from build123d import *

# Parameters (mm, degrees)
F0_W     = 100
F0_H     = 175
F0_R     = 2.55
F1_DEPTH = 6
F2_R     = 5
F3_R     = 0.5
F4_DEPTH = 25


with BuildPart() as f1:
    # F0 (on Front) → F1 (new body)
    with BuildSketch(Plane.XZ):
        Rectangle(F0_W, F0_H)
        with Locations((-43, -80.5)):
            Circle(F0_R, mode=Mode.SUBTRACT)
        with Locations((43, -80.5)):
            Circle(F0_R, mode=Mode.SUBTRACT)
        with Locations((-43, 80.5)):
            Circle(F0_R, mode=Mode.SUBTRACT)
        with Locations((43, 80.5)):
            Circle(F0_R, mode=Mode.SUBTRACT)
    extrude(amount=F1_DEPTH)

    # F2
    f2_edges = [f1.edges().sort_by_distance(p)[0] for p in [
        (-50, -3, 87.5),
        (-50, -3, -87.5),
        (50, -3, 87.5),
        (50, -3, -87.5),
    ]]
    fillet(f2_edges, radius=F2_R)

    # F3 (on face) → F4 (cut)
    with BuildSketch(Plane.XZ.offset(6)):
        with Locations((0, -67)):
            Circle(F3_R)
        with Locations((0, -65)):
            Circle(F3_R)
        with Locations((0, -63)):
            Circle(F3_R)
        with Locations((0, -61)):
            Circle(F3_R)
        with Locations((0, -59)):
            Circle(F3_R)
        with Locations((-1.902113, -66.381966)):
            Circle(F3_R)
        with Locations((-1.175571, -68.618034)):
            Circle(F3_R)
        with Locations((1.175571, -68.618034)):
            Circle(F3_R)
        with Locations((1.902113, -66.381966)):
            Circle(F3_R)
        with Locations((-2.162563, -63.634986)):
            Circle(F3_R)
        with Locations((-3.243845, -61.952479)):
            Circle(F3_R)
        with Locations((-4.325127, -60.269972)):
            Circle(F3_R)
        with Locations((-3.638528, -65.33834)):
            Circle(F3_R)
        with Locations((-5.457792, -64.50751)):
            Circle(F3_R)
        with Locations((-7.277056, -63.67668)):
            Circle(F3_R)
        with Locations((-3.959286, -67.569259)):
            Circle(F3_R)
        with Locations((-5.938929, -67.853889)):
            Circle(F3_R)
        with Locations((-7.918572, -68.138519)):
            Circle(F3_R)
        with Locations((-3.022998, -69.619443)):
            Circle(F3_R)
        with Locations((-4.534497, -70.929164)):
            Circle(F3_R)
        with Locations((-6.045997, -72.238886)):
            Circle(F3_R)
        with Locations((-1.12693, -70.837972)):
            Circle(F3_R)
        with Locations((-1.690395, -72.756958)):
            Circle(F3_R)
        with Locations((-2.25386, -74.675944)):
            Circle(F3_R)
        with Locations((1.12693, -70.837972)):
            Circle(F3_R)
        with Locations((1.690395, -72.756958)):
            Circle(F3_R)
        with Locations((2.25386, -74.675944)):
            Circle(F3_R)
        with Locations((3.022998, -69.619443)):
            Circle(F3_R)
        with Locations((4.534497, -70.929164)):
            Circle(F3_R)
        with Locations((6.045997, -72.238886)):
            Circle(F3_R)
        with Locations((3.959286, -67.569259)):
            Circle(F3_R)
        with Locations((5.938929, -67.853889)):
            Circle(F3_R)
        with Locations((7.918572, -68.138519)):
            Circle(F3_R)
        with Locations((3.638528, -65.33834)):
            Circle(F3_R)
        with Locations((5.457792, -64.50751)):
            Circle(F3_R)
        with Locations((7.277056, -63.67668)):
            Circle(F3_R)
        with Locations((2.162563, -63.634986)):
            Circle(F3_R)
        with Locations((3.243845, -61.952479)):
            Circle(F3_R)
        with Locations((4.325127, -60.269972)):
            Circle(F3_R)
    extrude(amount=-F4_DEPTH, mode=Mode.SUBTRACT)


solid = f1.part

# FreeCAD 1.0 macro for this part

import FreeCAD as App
import Part
import Sketcher

V = App.Vector


def edges_at(feature, points):
    """Names of the edges that pass closest to the given points."""
    edges = feature.Shape.Edges
    near = lambda p: min(range(len(edges)), key=lambda i: edges[i].distToShape(Part.Vertex(*p))[0])
    return sorted({f"Edge{near(p) + 1}" for p in points})

doc = App.newDocument("Part")
body = doc.addObject("PartDesign::Body", "Body")

# Sketch on XZ plane
sketch1 = body.newObject("Sketcher::SketchObject", "Sketch")
sketch1.AttachmentSupport = (doc.getObject("XZ_Plane"), [""])
sketch1.MapMode = "FlatFace"
sketch1.addGeometry([
    Part.LineSegment(V(-50, 87.5, 0), V(-50, -87.5, 0)),  # 0
    Part.LineSegment(V(-50, -87.5, 0), V(50, -87.5, 0)),  # 1
    Part.LineSegment(V(50, -87.5, 0), V(50, 87.5, 0)),  # 2
    Part.LineSegment(V(50, 87.5, 0), V(-50, 87.5, 0)),  # 3
    Part.Circle(V(-43, -80.5, 0), V(0, 0, 1), 2.5),  # 4
    Part.Circle(V(43, -80.5, 0), V(0, 0, 1), 2.5),  # 5
    Part.Circle(V(-43, 80.5, 0), V(0, 0, 1), 2.5),  # 6
    Part.Circle(V(43, 80.5, 0), V(0, 0, 1), 2.5),  # 7
], False)
sketch1.addConstraint([
    Sketcher.Constraint("Coincident", 0, 2, 1, 1),
    Sketcher.Constraint("Coincident", 1, 2, 2, 1),
    Sketcher.Constraint("Coincident", 2, 2, 3, 1),
    Sketcher.Constraint("Coincident", 3, 2, 0, 1),
    Sketcher.Constraint("Vertical", 0),
    Sketcher.Constraint("Horizontal", 1),
    Sketcher.Constraint("Vertical", 2),
    Sketcher.Constraint("Horizontal", 3),
    Sketcher.Constraint("Equal", 4, 5),
    Sketcher.Constraint("Equal", 5, 6),
    Sketcher.Constraint("Equal", 6, 7),
    Sketcher.Constraint("Symmetric", 5, 3, 6, 3, -1, 1),
    Sketcher.Constraint("Symmetric", 4, 3, 7, 3, -1, 1),
    Sketcher.Constraint("Symmetric", 0, 2, 2, 2, -1, 1),
    Sketcher.Constraint("Symmetric", 4, 3, 5, 3, -2),
    Sketcher.Constraint("Diameter", 4, 5.1),
    Sketcher.Constraint("DistanceX", 1, 1, 1, 2, 100.0),
    Sketcher.Constraint("DistanceY", 0, 2, 0, 1, 175.0),
    Sketcher.Constraint("DistanceX", 4, 3, -1, 1, 43.0),
    Sketcher.Constraint("DistanceY", 4, 3, 6, 3, 161.0),
])
pad1 = body.newObject("PartDesign::Pad", "Pad")
pad1.Profile = sketch1
pad1.Length = 6
doc.recompute()

fillet = body.newObject("PartDesign::Fillet", "Fillet")
fillet.Base = (pad1, edges_at(pad1, [
    (-50, -3, 87.5),
    (-50, -3, -87.5),
    (50, -3, 87.5),
    (50, -3, -87.5),
]))
fillet.Radius = 5

# Sketch on XZ plane
sketch2 = body.newObject("Sketcher::SketchObject", "Sketch001")
sketch2.AttachmentSupport = (doc.getObject("XZ_Plane"), [""])
sketch2.MapMode = "FlatFace"
sketch2.AttachmentOffset = App.Placement(V(0, 0, 6), App.Rotation())
sketch2.addGeometry([
    Part.Circle(V(0, -67, 0), V(0, 0, 1), 0.5),  # 0
    Part.Circle(V(0, -65, 0), V(0, 0, 1), 0.5),  # 1
    Part.Circle(V(0, -63, 0), V(0, 0, 1), 0.5),  # 2
    Part.Circle(V(0, -61, 0), V(0, 0, 1), 0.5),  # 3
    Part.Circle(V(0, -59, 0), V(0, 0, 1), 0.5),  # 4
    Part.Circle(V(-1.9, -66.4, 0), V(0, 0, 1), 0.5),  # 5
    Part.Circle(V(-1.2, -68.6, 0), V(0, 0, 1), 0.5),  # 6
    Part.Circle(V(1.2, -68.6, 0), V(0, 0, 1), 0.5),  # 7
    Part.Circle(V(1.9, -66.4, 0), V(0, 0, 1), 0.5),  # 8
    Part.Circle(V(-2.2, -63.6, 0), V(0, 0, 1), 0.5),  # 9
    Part.Circle(V(-3.2, -62, 0), V(0, 0, 1), 0.5),  # 10
    Part.Circle(V(-4.3, -60.3, 0), V(0, 0, 1), 0.5),  # 11
    Part.Circle(V(-3.6, -65.3, 0), V(0, 0, 1), 0.5),  # 12
    Part.Circle(V(-5.5, -64.5, 0), V(0, 0, 1), 0.5),  # 13
    Part.Circle(V(-7.3, -63.7, 0), V(0, 0, 1), 0.5),  # 14
    Part.Circle(V(-4, -67.6, 0), V(0, 0, 1), 0.5),  # 15
    Part.Circle(V(-5.9, -67.9, 0), V(0, 0, 1), 0.5),  # 16
    Part.Circle(V(-7.9, -68.1, 0), V(0, 0, 1), 0.5),  # 17
    Part.Circle(V(-3, -69.6, 0), V(0, 0, 1), 0.5),  # 18
    Part.Circle(V(-4.5, -70.9, 0), V(0, 0, 1), 0.5),  # 19
    Part.Circle(V(-6, -72.2, 0), V(0, 0, 1), 0.5),  # 20
    Part.Circle(V(-1.1, -70.8, 0), V(0, 0, 1), 0.5),  # 21
    Part.Circle(V(-1.7, -72.8, 0), V(0, 0, 1), 0.5),  # 22
    Part.Circle(V(-2.3, -74.7, 0), V(0, 0, 1), 0.5),  # 23
    Part.Circle(V(1.1, -70.8, 0), V(0, 0, 1), 0.5),  # 24
    Part.Circle(V(1.7, -72.8, 0), V(0, 0, 1), 0.5),  # 25
    Part.Circle(V(2.3, -74.7, 0), V(0, 0, 1), 0.5),  # 26
    Part.Circle(V(3, -69.6, 0), V(0, 0, 1), 0.5),  # 27
    Part.Circle(V(4.5, -70.9, 0), V(0, 0, 1), 0.5),  # 28
    Part.Circle(V(6, -72.2, 0), V(0, 0, 1), 0.5),  # 29
    Part.Circle(V(4, -67.6, 0), V(0, 0, 1), 0.5),  # 30
    Part.Circle(V(5.9, -67.9, 0), V(0, 0, 1), 0.5),  # 31
    Part.Circle(V(7.9, -68.1, 0), V(0, 0, 1), 0.5),  # 32
    Part.Circle(V(3.6, -65.3, 0), V(0, 0, 1), 0.5),  # 33
    Part.Circle(V(5.5, -64.5, 0), V(0, 0, 1), 0.5),  # 34
    Part.Circle(V(7.3, -63.7, 0), V(0, 0, 1), 0.5),  # 35
    Part.Circle(V(2.2, -63.6, 0), V(0, 0, 1), 0.5),  # 36
    Part.Circle(V(3.2, -62, 0), V(0, 0, 1), 0.5),  # 37
    Part.Circle(V(4.3, -60.3, 0), V(0, 0, 1), 0.5),  # 38
], False)
sketch2.addConstraint([
    Sketcher.Constraint("Equal", 0, 1),
    Sketcher.Constraint("Equal", 1, 2),
    Sketcher.Constraint("Equal", 2, 3),
    Sketcher.Constraint("Equal", 3, 4),
    Sketcher.Constraint("Equal", 4, 5),
    Sketcher.Constraint("Equal", 5, 6),
    Sketcher.Constraint("Equal", 6, 7),
    Sketcher.Constraint("Equal", 7, 8),
    Sketcher.Constraint("Equal", 8, 9),
    Sketcher.Constraint("Equal", 9, 10),
    Sketcher.Constraint("Equal", 10, 11),
    Sketcher.Constraint("Equal", 11, 12),
    Sketcher.Constraint("Equal", 12, 13),
    Sketcher.Constraint("Equal", 13, 14),
    Sketcher.Constraint("Equal", 14, 15),
    Sketcher.Constraint("Equal", 15, 16),
    Sketcher.Constraint("Equal", 16, 17),
    Sketcher.Constraint("Equal", 17, 18),
    Sketcher.Constraint("Equal", 18, 19),
    Sketcher.Constraint("Equal", 19, 20),
    Sketcher.Constraint("Equal", 20, 21),
    Sketcher.Constraint("Equal", 21, 22),
    Sketcher.Constraint("Equal", 22, 23),
    Sketcher.Constraint("Equal", 23, 24),
    Sketcher.Constraint("Equal", 24, 25),
    Sketcher.Constraint("Equal", 25, 26),
    Sketcher.Constraint("Equal", 26, 27),
    Sketcher.Constraint("Equal", 27, 28),
    Sketcher.Constraint("Equal", 28, 29),
    Sketcher.Constraint("Equal", 29, 30),
    Sketcher.Constraint("Equal", 30, 31),
    Sketcher.Constraint("Equal", 31, 32),
    Sketcher.Constraint("Equal", 32, 33),
    Sketcher.Constraint("Equal", 33, 34),
    Sketcher.Constraint("Equal", 34, 35),
    Sketcher.Constraint("Equal", 35, 36),
    Sketcher.Constraint("Equal", 36, 37),
    Sketcher.Constraint("Equal", 37, 38),
    Sketcher.Constraint("Symmetric", 6, 3, 7, 3, -2),
    Sketcher.Constraint("Symmetric", 5, 3, 8, 3, -2),
    Sketcher.Constraint("Symmetric", 21, 3, 24, 3, -2),
    Sketcher.Constraint("Symmetric", 22, 3, 25, 3, -2),
    Sketcher.Constraint("Symmetric", 23, 3, 26, 3, -2),
    Sketcher.Constraint("Symmetric", 18, 3, 27, 3, -2),
    Sketcher.Constraint("Symmetric", 19, 3, 28, 3, -2),
    Sketcher.Constraint("Symmetric", 20, 3, 29, 3, -2),
    Sketcher.Constraint("Symmetric", 15, 3, 30, 3, -2),
    Sketcher.Constraint("Symmetric", 16, 3, 31, 3, -2),
    Sketcher.Constraint("Symmetric", 17, 3, 32, 3, -2),
    Sketcher.Constraint("Symmetric", 12, 3, 33, 3, -2),
    Sketcher.Constraint("Symmetric", 13, 3, 34, 3, -2),
    Sketcher.Constraint("Symmetric", 14, 3, 35, 3, -2),
    Sketcher.Constraint("Symmetric", 9, 3, 36, 3, -2),
    Sketcher.Constraint("Symmetric", 10, 3, 37, 3, -2),
    Sketcher.Constraint("Symmetric", 11, 3, 38, 3, -2),
    Sketcher.Constraint("PointOnObject", 0, 3, -2),
    Sketcher.Constraint("PointOnObject", 1, 3, -2),
    Sketcher.Constraint("PointOnObject", 2, 3, -2),
    Sketcher.Constraint("PointOnObject", 3, 3, -2),
    Sketcher.Constraint("PointOnObject", 4, 3, -2),
    Sketcher.Constraint("Diameter", 0, 1.0),
    Sketcher.Constraint("DistanceY", 0, 3, -1, 1, 67.0),
    Sketcher.Constraint("DistanceY", 1, 3, -1, 1, 65.0),
    Sketcher.Constraint("DistanceY", 2, 3, -1, 1, 63.0),
    Sketcher.Constraint("DistanceY", 3, 3, -1, 1, 61.0),
    Sketcher.Constraint("DistanceY", 4, 3, -1, 1, 59.0),
    Sketcher.Constraint("DistanceX", 20, 3, 18, 3, 3.022999),
    Sketcher.Constraint("DistanceY", 14, 3, 10, 3, 1.724201),
    Sketcher.Constraint("DistanceX", 16, 3, 12, 3, 2.300401),
    Sketcher.Constraint("DistanceX", 19, 3, 18, 3, 1.511499),
    Sketcher.Constraint("DistanceX", 21, 3, 7, 3, 2.302501),
    Sketcher.Constraint("DistanceX", 19, 3, 22, 3, 2.844102),
    Sketcher.Constraint("DistanceY", 23, 3, 18, 3, 5.056501),
    Sketcher.Constraint("DistanceX", 6, 3, -1, 1, 1.175571),
    Sketcher.Constraint("DistanceY", 10, 3, -1, 1, 61.952479),
    Sketcher.Constraint("DistanceX", 12, 3, -1, 1, 3.638528),
    Sketcher.Constraint("DistanceY", 12, 3, -1, 1, 65.33834),
    Sketcher.Constraint("DistanceY", 13, 3, -1, 1, 64.50751),
    Sketcher.Constraint("DistanceY", 15, 3, -1, 1, 67.569259),
    Sketcher.Constraint("DistanceY", 16, 3, -1, 1, 67.853889),
    Sketcher.Constraint("DistanceY", 17, 3, -1, 1, 68.138519),
    Sketcher.Constraint("DistanceY", 21, 3, -1, 1, 70.837972),
    Sketcher.Constraint("DistanceX", 23, 3, -1, 1, 2.25386),
    Sketcher.Constraint("DistanceX", 9, 3, 5, 3, 0.26045),
    Sketcher.Constraint("DistanceY", 5, 3, 9, 3, 2.74698),
    Sketcher.Constraint("DistanceX", 10, 3, 9, 3, 1.081282),
    Sketcher.Constraint("DistanceX", 13, 3, 9, 3, 3.295229),
    Sketcher.Constraint("DistanceX", 14, 3, 12, 3, 3.638528),
    Sketcher.Constraint("DistanceX", 14, 3, 10, 3, 4.033211),
    Sketcher.Constraint("DistanceX", 14, 3, 11, 3, 2.951929),
    Sketcher.Constraint("DistanceX", 15, 3, 12, 3, 0.320758),
    Sketcher.Constraint("DistanceX", 17, 3, 13, 3, 2.46078),
    Sketcher.Constraint("DistanceY", 18, 3, 6, 3, 1.001409),
    Sketcher.Constraint("DistanceX", 15, 3, 18, 3, 0.936288),
    Sketcher.Constraint("DistanceY", 19, 3, 18, 3, 1.309721),
    Sketcher.Constraint("DistanceY", 20, 3, 19, 3, 1.309722),
    Sketcher.Constraint("DistanceY", 21, 3, 18, 3, 1.218529),
    Sketcher.Constraint("DistanceY", 5, 3, -1, 1, 66.381966),
    Sketcher.Constraint("DistanceY", 11, 3, -1, 1, 60.269972),
    Sketcher.Constraint("DistanceY", 22, 3, -1, 1, 72.756958),
])
pocket1 = body.newObject("PartDesign::Pocket", "Pocket")
pocket1.Profile = sketch2
pocket1.Length = 25

doc.recompute()
